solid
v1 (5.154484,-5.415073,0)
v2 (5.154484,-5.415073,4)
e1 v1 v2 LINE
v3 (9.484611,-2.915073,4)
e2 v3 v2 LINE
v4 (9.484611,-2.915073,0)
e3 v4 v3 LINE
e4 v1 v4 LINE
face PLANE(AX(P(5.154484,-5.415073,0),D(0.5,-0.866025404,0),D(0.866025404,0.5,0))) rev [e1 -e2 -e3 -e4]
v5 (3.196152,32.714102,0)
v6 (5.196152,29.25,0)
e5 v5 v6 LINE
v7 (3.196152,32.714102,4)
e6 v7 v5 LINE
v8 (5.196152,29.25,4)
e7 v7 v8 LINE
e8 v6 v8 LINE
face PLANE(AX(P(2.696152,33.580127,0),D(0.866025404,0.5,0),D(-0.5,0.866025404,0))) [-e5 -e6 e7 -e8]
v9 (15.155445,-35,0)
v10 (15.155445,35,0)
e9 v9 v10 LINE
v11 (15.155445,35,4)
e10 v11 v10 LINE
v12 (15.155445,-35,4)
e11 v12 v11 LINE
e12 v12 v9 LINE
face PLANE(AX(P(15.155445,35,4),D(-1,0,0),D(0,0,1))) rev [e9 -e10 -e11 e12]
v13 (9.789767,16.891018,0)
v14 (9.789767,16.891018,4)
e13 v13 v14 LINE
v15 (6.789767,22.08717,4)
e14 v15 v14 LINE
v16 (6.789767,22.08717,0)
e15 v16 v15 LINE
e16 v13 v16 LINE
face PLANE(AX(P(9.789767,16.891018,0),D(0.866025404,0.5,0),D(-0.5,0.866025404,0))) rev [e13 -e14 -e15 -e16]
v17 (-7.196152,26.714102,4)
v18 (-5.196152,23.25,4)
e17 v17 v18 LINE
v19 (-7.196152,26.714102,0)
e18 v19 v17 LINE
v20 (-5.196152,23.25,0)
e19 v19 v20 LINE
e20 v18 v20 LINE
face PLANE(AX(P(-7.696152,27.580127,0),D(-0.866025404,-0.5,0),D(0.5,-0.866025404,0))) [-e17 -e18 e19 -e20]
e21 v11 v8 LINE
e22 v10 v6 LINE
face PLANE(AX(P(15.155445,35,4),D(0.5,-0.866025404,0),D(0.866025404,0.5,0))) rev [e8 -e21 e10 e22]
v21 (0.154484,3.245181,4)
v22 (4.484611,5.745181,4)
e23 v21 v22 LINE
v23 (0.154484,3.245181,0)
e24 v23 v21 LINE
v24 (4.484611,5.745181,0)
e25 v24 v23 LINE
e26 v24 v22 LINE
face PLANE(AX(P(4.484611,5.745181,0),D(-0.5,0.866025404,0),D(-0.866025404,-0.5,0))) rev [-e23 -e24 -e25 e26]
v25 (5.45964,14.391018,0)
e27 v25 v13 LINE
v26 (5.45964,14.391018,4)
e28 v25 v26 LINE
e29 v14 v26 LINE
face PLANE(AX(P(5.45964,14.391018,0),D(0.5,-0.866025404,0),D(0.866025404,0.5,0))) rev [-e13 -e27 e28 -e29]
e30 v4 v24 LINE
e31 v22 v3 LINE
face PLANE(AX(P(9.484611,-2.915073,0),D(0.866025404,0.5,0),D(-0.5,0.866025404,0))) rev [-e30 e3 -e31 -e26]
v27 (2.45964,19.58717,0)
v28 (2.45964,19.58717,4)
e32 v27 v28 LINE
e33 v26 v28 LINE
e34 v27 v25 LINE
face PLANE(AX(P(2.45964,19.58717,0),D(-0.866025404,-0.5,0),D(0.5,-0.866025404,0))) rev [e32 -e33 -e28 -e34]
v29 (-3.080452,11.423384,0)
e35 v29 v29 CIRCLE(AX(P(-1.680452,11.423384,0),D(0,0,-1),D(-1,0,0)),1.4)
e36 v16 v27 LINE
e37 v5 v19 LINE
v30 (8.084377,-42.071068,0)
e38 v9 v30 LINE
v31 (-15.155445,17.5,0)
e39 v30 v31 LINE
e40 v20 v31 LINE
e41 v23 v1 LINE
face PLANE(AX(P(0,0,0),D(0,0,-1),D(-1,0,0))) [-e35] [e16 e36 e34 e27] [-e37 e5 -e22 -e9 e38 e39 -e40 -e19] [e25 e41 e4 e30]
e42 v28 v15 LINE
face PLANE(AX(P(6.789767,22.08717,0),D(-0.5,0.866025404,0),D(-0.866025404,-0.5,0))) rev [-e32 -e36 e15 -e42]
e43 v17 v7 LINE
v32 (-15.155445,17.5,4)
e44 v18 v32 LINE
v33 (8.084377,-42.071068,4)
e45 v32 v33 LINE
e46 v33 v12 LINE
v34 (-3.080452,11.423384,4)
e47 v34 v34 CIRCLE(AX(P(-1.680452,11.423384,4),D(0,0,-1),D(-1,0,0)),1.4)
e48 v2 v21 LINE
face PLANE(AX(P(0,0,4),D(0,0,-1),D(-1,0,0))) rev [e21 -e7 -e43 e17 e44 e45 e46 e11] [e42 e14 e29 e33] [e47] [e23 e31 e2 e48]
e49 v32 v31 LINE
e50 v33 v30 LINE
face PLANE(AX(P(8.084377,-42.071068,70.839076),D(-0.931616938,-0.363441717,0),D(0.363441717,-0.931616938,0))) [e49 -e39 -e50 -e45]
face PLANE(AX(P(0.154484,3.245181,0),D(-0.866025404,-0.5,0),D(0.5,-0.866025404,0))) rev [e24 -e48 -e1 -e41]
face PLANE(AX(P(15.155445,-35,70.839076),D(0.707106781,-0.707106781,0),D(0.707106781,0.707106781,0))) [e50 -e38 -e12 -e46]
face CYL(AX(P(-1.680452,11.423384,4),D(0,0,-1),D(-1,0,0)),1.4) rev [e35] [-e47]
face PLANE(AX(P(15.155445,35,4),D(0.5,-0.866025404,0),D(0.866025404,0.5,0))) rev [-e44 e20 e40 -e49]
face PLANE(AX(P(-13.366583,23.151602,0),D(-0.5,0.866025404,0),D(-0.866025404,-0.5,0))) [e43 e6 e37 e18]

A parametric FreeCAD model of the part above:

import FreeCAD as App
import Part
import Sketcher

V = App.Vector
Q = App.Units.Quantity

doc = App.newDocument("Part")
body = doc.addObject("PartDesign::Body", "Body")

sketch1 = body.newObject("Sketcher::SketchObject", "Sketch")
sketch1.AttachmentSupport = (doc.getObject("XY_Plane"), [""])
sketch1.MapMode = "FlatFace"
sketch1.addGeometry(Part.LineSegment(V(-15, 18, 0), V(15, -35, 0)), False)
sketch1.addGeometry(Part.LineSegment(V(15, -35, 0), V(15, 35, 0)), False)
sketch1.addGeometry(Part.LineSegment(V(15, 35, 0), V(-15, 18, 0)), False)
sketch1.addConstraint(Sketcher.Constraint("Coincident", 0, 2, 1, 1))
sketch1.addConstraint(Sketcher.Constraint("Coincident", 1, 2, 2, 1))
sketch1.addConstraint(Sketcher.Constraint("Coincident", 2, 2, 0, 1))
sketch1.addConstraint(Sketcher.Constraint("Vertical", 1))
sketch1.addConstraint(Sketcher.Constraint("Perpendicular", 0, 2))
sketch1.addConstraint(Sketcher.Constraint("DistanceY", 1, 1, 1, 2, 70.0))
sketch1.addConstraint(Sketcher.Constraint("Angle", 0, Q("-60 deg")))
sketch1.addConstraint(Sketcher.Constraint("DistanceY", 0, 2, -1, 1, 35.0))
sketch1.addConstraint(Sketcher.Constraint("DistanceX", -1, 1, 0, 2, 15.155445))
pad1 = body.newObject("PartDesign::Pad", "Pad")
pad1.Profile = sketch1
pad1.Length = 4

sketch2 = body.newObject("Sketcher::SketchObject", "Sketch001")
sketch2.Placement = App.Placement(V(-11.366583, 19.6875, 0), App.Rotation(V(0.866025404, 0.5, 0), V(0, 0, -1), V(-0.5, 0.866025404, 0), "ZXY"))
sketch2.addGeometry(Part.LineSegment(V(7.1, -4, 0), V(19.1, -4, 0)), False)
sketch2.addGeometry(Part.LineSegment(V(19.1, -4, 0), V(19.1, 0, 0)), False)
sketch2.addGeometry(Part.LineSegment(V(19.1, 0, 0), V(7.1, 0, 0)), False)
sketch2.addGeometry(Part.LineSegment(V(7.1, 0, 0), V(7.1, -4, 0)), False)
sketch2.addConstraint(Sketcher.Constraint("Coincident", 0, 2, 1, 1))
sketch2.addConstraint(Sketcher.Constraint("Coincident", 1, 2, 2, 1))
sketch2.addConstraint(Sketcher.Constraint("Coincident", 2, 2, 3, 1))
sketch2.addConstraint(Sketcher.Constraint("Coincident", 3, 2, 0, 1))
sketch2.addConstraint(Sketcher.Constraint("Horizontal", 0))
sketch2.addConstraint(Sketcher.Constraint("Vertical", 1))
sketch2.addConstraint(Sketcher.Constraint("Horizontal", 2))
sketch2.addConstraint(Sketcher.Constraint("Vertical", 3))
sketch2.addConstraint(Sketcher.Constraint("PointOnObject", 1, 2, -1))
sketch2.addConstraint(Sketcher.Constraint("DistanceX", 0, 1, 0, 2, 12.0))
sketch2.addConstraint(Sketcher.Constraint("DistanceY", 1, 1, 1, 2, 4.0))
sketch2.addConstraint(Sketcher.Constraint("DistanceX", -1, 1, 0, 2, 19.125))
pad2 = body.newObject("PartDesign::Pad", "Pad001")
pad2.Profile = sketch2
pad2.Length = 5

sketch3 = body.newObject("Sketcher::SketchObject", "Sketch002")
sketch3.AttachmentSupport = (doc.getObject("XY_Plane"), [""])
sketch3.MapMode = "FlatFace"
sketch3.AttachmentOffset = App.Placement(V(0, 0, 5), App.Rotation())
sketch3.addGeometry(Part.LineSegment(V(9, -3, 0), V(4, 6, 0)), False)
sketch3.addGeometry(Part.LineSegment(V(4, 6, 0), V(0, 3, 0)), False)
sketch3.addGeometry(Part.LineSegment(V(0, 3, 0), V(5, -5, 0)), False)
sketch3.addGeometry(Part.LineSegment(V(5, -5, 0), V(9, -3, 0)), False)
sketch3.addConstraint(Sketcher.Constraint("Coincident", 0, 2, 1, 1))
sketch3.addConstraint(Sketcher.Constraint("Coincident", 1, 2, 2, 1))
sketch3.addConstraint(Sketcher.Constraint("Coincident", 2, 2, 3, 1))
sketch3.addConstraint(Sketcher.Constraint("Coincident", 3, 2, 0, 1))
sketch3.addConstraint(Sketcher.Constraint("Perpendicular", 0, 1))
sketch3.addConstraint(Sketcher.Constraint("Perpendicular", 1, 2))
sketch3.addConstraint(Sketcher.Constraint("Perpendicular", 2, 3))
sketch3.addConstraint(Sketcher.Constraint("Angle", 0, Q("120 deg")))
sketch3.addConstraint(Sketcher.Constraint("Distance", 0, 10.0))
sketch3.addConstraint(Sketcher.Constraint("Distance", 1, 5.0))
sketch3.addConstraint(Sketcher.Constraint("DistanceX", -1, 1, 0, 2, 4.484611))
sketch3.addConstraint(Sketcher.Constraint("DistanceY", -1, 1, 0, 2, 5.745181))
pocket1 = body.newObject("PartDesign::Pocket", "Pocket")
pocket1.Profile = sketch3
pocket1.Length = 5

sketch4 = body.newObject("Sketcher::SketchObject", "Sketch003")
sketch4.AttachmentSupport = (doc.getObject("XY_Plane"), [""])
sketch4.MapMode = "FlatFace"
sketch4.AttachmentOffset = App.Placement(V(0, 0, 5), App.Rotation())
sketch4.addGeometry(Part.LineSegment(V(2.5, 19.6, 0), V(5.5, 14.4, 0)), False)
sketch4.addGeometry(Part.LineSegment(V(5.5, 14.4, 0), V(9.8, 16.9, 0)), False)
sketch4.addGeometry(Part.LineSegment(V(9.8, 16.9, 0), V(6.8, 22.1, 0)), False)
sketch4.addGeometry(Part.LineSegment(V(6.8, 22.1, 0), V(2.5, 19.6, 0)), False)
sketch4.addConstraint(Sketcher.Constraint("Coincident", 0, 2, 1, 1))
sketch4.addConstraint(Sketcher.Constraint("Coincident", 1, 2, 2, 1))
sketch4.addConstraint(Sketcher.Constraint("Coincident", 2, 2, 3, 1))
sketch4.addConstraint(Sketcher.Constraint("Coincident", 3, 2, 0, 1))
sketch4.addConstraint(Sketcher.Constraint("Perpendicular", 0, 1))
sketch4.addConstraint(Sketcher.Constraint("Perpendicular", 1, 2))
sketch4.addConstraint(Sketcher.Constraint("Perpendicular", 2, 3))
sketch4.addConstraint(Sketcher.Constraint("Angle", 0, Q("-60 deg")))
sketch4.addConstraint(Sketcher.Constraint("Distance", 0, 6.0))
sketch4.addConstraint(Sketcher.Constraint("Distance", 1, 5.0))
sketch4.addConstraint(Sketcher.Constraint("DistanceX", -1, 1, 0, 2, 5.45964))
sketch4.addConstraint(Sketcher.Constraint("DistanceY", -1, 1, 2, 2, 22.08717))
pocket2 = body.newObject("PartDesign::Pocket", "Pocket001")
pocket2.Profile = sketch4
pocket2.Length = 5

sketch5 = body.newObject("Sketcher::SketchObject", "Sketch004")
sketch5.AttachmentSupport = (doc.getObject("XY_Plane"), [""])
sketch5.MapMode = "FlatFace"
sketch5.addGeometry(Part.LineSegment(V(-15, 18, 0), V(15, -35, 0)), False)
sketch5.addGeometry(Part.LineSegment(V(15, -35, 0), V(8, -42, 0)), False)
sketch5.addGeometry(Part.LineSegment(V(8, -42, 0), V(-15, 18, 0)), False)
sketch5.addConstraint(Sketcher.Constraint("Coincident", 0, 2, 1, 1))
sketch5.addConstraint(Sketcher.Constraint("Coincident", 1, 2, 2, 1))
sketch5.addConstraint(Sketcher.Constraint("Coincident", 2, 2, 0, 1))
sketch5.addConstraint(Sketcher.Constraint("Angle", 0, Q("-60 deg")))
sketch5.addConstraint(Sketcher.Constraint("Angle", 1, Q("-135 deg")))
sketch5.addConstraint(Sketcher.Constraint("Distance", 1, 10.0))
sketch5.addConstraint(Sketcher.Constraint("DistanceY", 0, 2, -1, 1, 35.0))
sketch5.addConstraint(Sketcher.Constraint("DistanceY", -1, 1, 2, 2, 17.5))
sketch5.addConstraint(Sketcher.Constraint("DistanceX", -1, 1, 0, 2, 15.155445))
pad3 = body.newObject("PartDesign::Pad", "Pad002")
pad3.Profile = sketch5
pad3.Length = 4

sketch6 = body.newObject("Sketcher::SketchObject", "Sketch005")
sketch6.Placement = App.Placement(V(-13.866583, 24.017627, 0), App.Rotation(V(0.866025404, 0.5, 0), V(0, 0, -1), V(-0.5, 0.866025404, 0), "ZXY"))
sketch6.addGeometry(Part.LineSegment(V(7.1, 0, 0), V(7.1, -4, 0)), False)
sketch6.addGeometry(Part.LineSegment(V(7.1, -4, 0), V(19.1, -4, 0)), False)
sketch6.addGeometry(Part.LineSegment(V(19.1, -4, 0), V(19.1, 0, 0)), False)
sketch6.addGeometry(Part.LineSegment(V(19.1, 0, 0), V(7.1, 0, 0)), False)
sketch6.addConstraint(Sketcher.Constraint("Coincident", 0, 2, 1, 1))
sketch6.addConstraint(Sketcher.Constraint("Coincident", 1, 2, 2, 1))
sketch6.addConstraint(Sketcher.Constraint("Coincident", 2, 2, 3, 1))
sketch6.addConstraint(Sketcher.Constraint("Coincident", 3, 2, 0, 1))
sketch6.addConstraint(Sketcher.Constraint("Vertical", 0))
sketch6.addConstraint(Sketcher.Constraint("Horizontal", 1))
sketch6.addConstraint(Sketcher.Constraint("Vertical", 2))
sketch6.addConstraint(Sketcher.Constraint("Horizontal", 3))
sketch6.addConstraint(Sketcher.Constraint("PointOnObject", 2, 2, -1))
sketch6.addConstraint(Sketcher.Constraint("DistanceX", 1, 1, 1, 2, 12.0))
sketch6.addConstraint(Sketcher.Constraint("DistanceY", 0, 2, 0, 1, 4.0))
sketch6.addConstraint(Sketcher.Constraint("DistanceX", -1, 1, 0, 2, 7.125))
pocket3 = body.newObject("PartDesign::Pocket", "Pocket002")
pocket3.Profile = sketch6
pocket3.Length = 1

sketch7 = body.newObject("Sketcher::SketchObject", "Sketch006")
sketch7.AttachmentSupport = (doc.getObject("XY_Plane"), [""])
sketch7.MapMode = "FlatFace"
sketch7.addGeometry(Part.Circle(V(-1.7, 11.4, 0), V(0, 0, 1), 1.4), False)
sketch7.addConstraint(Sketcher.Constraint("Diameter", 0, 2.8))
sketch7.addConstraint(Sketcher.Constraint("DistanceX", 0, 3, -1, 1, 1.680452))
sketch7.addConstraint(Sketcher.Constraint("DistanceY", -1, 1, 0, 3, 11.423384))
pocket4 = body.newObject("PartDesign::Pocket", "Pocket003")
pocket4.Profile = sketch7
pocket4.Length = 4
pocket4.Reversed = True

doc.recompute()
